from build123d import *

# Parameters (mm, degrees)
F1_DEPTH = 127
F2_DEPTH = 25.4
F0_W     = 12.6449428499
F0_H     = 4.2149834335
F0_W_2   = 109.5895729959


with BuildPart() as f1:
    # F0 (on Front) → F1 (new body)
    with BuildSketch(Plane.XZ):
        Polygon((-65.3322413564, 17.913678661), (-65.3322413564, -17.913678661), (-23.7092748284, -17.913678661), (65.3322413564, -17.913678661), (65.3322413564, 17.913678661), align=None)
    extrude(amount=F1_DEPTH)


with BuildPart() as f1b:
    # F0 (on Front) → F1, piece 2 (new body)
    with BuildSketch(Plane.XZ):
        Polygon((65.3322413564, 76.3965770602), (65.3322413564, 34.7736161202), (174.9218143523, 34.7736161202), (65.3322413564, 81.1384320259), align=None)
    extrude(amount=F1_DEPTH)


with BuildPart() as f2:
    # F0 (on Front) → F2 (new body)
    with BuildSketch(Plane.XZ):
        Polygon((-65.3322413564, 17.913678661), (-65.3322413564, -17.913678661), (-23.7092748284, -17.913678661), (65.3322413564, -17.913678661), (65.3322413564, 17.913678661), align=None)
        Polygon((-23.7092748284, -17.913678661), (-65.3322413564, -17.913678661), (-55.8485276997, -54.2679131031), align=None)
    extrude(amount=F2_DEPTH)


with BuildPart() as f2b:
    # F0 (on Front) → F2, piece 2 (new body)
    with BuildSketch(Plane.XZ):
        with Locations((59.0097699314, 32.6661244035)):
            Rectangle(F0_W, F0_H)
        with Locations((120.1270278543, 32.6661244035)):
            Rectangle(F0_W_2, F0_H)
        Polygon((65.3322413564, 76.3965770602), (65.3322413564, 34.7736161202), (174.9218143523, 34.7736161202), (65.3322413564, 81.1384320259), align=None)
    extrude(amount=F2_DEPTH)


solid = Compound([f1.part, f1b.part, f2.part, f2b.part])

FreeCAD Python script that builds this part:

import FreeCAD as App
import Part
import Sketcher
from FreeCAD import Vector
Q = App.Units.Quantity


def add_polygon(sketch, points):
    """Adds a closed chain of lines whose ends are joined by coincident constraints."""
    first, n = sketch.GeometryCount, len(points)
    for a, b in zip(points, points[1:] + points[:1]):
        sketch.addGeometry(Part.LineSegment(App.Vector(*a, 0), App.Vector(*b, 0)), False)
    for i in range(n):
        sketch.addConstraint(Sketcher.Constraint("Coincident", first + i, 2, first + (i + 1) % n, 1))

doc = App.newDocument("Part")
body = doc.addObject("PartDesign::Body", "Body")

# Sketch on XZ plane
sketch1 = body.newObject("Sketcher::SketchObject", "Sketch")
sketch1.AttachmentSupport = (doc.getObject("XZ_Plane"), [""])
sketch1.MapMode = "FlatFace"
add_polygon(sketch1, [(-65.332241, 17.913679), (-65.332241, -17.913679), (65.332241, -17.913679), (65.332241, 17.913679)])  # lines 0-3
sketch1.addConstraint([
    Sketcher.Constraint("Vertical", 0),
    Sketcher.Constraint("Horizontal", 1),
    Sketcher.Constraint("Vertical", 2),
    Sketcher.Constraint("Horizontal", 3),
    Sketcher.Constraint("Symmetric", 0, 2, 2, 2, -1, 1),
    Sketcher.Constraint("DistanceX", 1, 1, 1, 2, Q("130.664483 mm")),
    Sketcher.Constraint("DistanceY", 0, 2, 0, 1, Q("35.827357 mm")),
])
pad1 = body.newObject("PartDesign::Pad", "Pad")
pad1.Profile = sketch1
pad1.Length = Q("5 in")
body2 = doc.addObject("PartDesign::Body", "Body001")

# Sketch on XZ plane
sketch2 = body2.newObject("Sketcher::SketchObject", "Sketch001")
sketch2.AttachmentSupport = (doc.getObject("XZ_Plane001"), [""])
sketch2.MapMode = "FlatFace"
add_polygon(sketch2, [(65.332241, 34.773616), (174.921814, 34.773616), (65.332241, 81.138432)])  # lines 0-2
sketch2.addConstraint([
    Sketcher.Constraint("Horizontal", 0),
    Sketcher.Constraint("Vertical", 2),
    Sketcher.Constraint("DistanceX", 0, 1, 0, 2, Q("109.589573 mm")),
    Sketcher.Constraint("DistanceY", 2, 2, 2, 1, Q("46.364816 mm")),
    Sketcher.Constraint("DistanceX", -1, 1, 1, 2, Q("65.332241 mm")),
    Sketcher.Constraint("DistanceY", -1, 1, 0, 2, Q("34.773616 mm")),
])
pad2 = body2.newObject("PartDesign::Pad", "Pad001")
pad2.Profile = sketch2
pad2.Length = Q("5 in")
body3 = doc.addObject("PartDesign::Body", "Body002")

# Sketch on XZ plane
sketch3 = body3.newObject("Sketcher::SketchObject", "Sketch002")
sketch3.AttachmentSupport = (doc.getObject("XZ_Plane002"), [""])
sketch3.MapMode = "FlatFace"
add_polygon(sketch3, [(-65.332241, 17.913679), (-65.332241, -17.913679), (-55.848528, -54.267913), (-23.709275, -17.913679), (65.332241, -17.913679), (65.332241, 17.913679)])  # lines 0-5
sketch3.addConstraint([
    Sketcher.Constraint("Vertical", 0),
    Sketcher.Constraint("Horizontal", 3),
    Sketcher.Constraint("Vertical", 4),
    Sketcher.Constraint("Horizontal", 5),
    Sketcher.Constraint("Symmetric", 0, 2, 4, 2, -1, 1),
    Sketcher.Constraint("Horizontal", 0, 2, 2, 2),
    Sketcher.Constraint("Distance", 2, Q("48.523829 mm")),
    Sketcher.Constraint("DistanceX", 3, 1, 3, 2, Q("89.041516 mm")),
    Sketcher.Constraint("DistanceX", 5, 2, 5, 1, Q("130.664483 mm")),
    Sketcher.Constraint("DistanceY", 0, 2, 0, 1, Q("35.827357 mm")),
    Sketcher.Constraint("DistanceX", 1, 2, 3, 2, Q("121.180769 mm")),
])
pad3 = body3.newObject("PartDesign::Pad", "Pad002")
pad3.Profile = sketch3
pad3.Length = Q("1 in")
body4 = doc.addObject("PartDesign::Body", "Body003")

# Sketch on XZ plane
sketch4 = body4.newObject("Sketcher::SketchObject", "Sketch003")
sketch4.AttachmentSupport = (doc.getObject("XZ_Plane003"), [""])
sketch4.MapMode = "FlatFace"
add_polygon(sketch4, [(52.687299, 34.773616), (52.687299, 30.558633), (174.921814, 30.558633), (174.921814, 34.773616), (65.332241, 81.138432), (65.332241, 34.773616)])  # lines 0-5
sketch4.addConstraint([
    Sketcher.Constraint("Vertical", 0),
    Sketcher.Constraint("Horizontal", 1),
    Sketcher.Constraint("Vertical", 2),
    Sketcher.Constraint("Vertical", 4),
    Sketcher.Constraint("Horizontal", 5),
    Sketcher.Constraint("Horizontal", 2, 2, 4, 2),
    Sketcher.Constraint("DistanceX", -1, 1, 0, 2, Q("52.687299 mm")),
    Sketcher.Constraint("DistanceY", 0, 2, 3, 2, Q("50.579799 mm")),
    Sketcher.Constraint("DistanceX", 1, 1, 1, 2, Q("122.234516 mm")),
    Sketcher.Constraint("DistanceX", 5, 2, 5, 1, Q("12.644943 mm")),
    Sketcher.Constraint("DistanceY", 0, 2, 0, 1, Q("4.214983 mm")),
    Sketcher.Constraint("DistanceY", -1, 1, 0, 2, Q("30.558633 mm")),
])
pad4 = body4.newObject("PartDesign::Pad", "Pad003")
pad4.Profile = sketch4
pad4.Length = Q("1 in")

doc.recompute()
